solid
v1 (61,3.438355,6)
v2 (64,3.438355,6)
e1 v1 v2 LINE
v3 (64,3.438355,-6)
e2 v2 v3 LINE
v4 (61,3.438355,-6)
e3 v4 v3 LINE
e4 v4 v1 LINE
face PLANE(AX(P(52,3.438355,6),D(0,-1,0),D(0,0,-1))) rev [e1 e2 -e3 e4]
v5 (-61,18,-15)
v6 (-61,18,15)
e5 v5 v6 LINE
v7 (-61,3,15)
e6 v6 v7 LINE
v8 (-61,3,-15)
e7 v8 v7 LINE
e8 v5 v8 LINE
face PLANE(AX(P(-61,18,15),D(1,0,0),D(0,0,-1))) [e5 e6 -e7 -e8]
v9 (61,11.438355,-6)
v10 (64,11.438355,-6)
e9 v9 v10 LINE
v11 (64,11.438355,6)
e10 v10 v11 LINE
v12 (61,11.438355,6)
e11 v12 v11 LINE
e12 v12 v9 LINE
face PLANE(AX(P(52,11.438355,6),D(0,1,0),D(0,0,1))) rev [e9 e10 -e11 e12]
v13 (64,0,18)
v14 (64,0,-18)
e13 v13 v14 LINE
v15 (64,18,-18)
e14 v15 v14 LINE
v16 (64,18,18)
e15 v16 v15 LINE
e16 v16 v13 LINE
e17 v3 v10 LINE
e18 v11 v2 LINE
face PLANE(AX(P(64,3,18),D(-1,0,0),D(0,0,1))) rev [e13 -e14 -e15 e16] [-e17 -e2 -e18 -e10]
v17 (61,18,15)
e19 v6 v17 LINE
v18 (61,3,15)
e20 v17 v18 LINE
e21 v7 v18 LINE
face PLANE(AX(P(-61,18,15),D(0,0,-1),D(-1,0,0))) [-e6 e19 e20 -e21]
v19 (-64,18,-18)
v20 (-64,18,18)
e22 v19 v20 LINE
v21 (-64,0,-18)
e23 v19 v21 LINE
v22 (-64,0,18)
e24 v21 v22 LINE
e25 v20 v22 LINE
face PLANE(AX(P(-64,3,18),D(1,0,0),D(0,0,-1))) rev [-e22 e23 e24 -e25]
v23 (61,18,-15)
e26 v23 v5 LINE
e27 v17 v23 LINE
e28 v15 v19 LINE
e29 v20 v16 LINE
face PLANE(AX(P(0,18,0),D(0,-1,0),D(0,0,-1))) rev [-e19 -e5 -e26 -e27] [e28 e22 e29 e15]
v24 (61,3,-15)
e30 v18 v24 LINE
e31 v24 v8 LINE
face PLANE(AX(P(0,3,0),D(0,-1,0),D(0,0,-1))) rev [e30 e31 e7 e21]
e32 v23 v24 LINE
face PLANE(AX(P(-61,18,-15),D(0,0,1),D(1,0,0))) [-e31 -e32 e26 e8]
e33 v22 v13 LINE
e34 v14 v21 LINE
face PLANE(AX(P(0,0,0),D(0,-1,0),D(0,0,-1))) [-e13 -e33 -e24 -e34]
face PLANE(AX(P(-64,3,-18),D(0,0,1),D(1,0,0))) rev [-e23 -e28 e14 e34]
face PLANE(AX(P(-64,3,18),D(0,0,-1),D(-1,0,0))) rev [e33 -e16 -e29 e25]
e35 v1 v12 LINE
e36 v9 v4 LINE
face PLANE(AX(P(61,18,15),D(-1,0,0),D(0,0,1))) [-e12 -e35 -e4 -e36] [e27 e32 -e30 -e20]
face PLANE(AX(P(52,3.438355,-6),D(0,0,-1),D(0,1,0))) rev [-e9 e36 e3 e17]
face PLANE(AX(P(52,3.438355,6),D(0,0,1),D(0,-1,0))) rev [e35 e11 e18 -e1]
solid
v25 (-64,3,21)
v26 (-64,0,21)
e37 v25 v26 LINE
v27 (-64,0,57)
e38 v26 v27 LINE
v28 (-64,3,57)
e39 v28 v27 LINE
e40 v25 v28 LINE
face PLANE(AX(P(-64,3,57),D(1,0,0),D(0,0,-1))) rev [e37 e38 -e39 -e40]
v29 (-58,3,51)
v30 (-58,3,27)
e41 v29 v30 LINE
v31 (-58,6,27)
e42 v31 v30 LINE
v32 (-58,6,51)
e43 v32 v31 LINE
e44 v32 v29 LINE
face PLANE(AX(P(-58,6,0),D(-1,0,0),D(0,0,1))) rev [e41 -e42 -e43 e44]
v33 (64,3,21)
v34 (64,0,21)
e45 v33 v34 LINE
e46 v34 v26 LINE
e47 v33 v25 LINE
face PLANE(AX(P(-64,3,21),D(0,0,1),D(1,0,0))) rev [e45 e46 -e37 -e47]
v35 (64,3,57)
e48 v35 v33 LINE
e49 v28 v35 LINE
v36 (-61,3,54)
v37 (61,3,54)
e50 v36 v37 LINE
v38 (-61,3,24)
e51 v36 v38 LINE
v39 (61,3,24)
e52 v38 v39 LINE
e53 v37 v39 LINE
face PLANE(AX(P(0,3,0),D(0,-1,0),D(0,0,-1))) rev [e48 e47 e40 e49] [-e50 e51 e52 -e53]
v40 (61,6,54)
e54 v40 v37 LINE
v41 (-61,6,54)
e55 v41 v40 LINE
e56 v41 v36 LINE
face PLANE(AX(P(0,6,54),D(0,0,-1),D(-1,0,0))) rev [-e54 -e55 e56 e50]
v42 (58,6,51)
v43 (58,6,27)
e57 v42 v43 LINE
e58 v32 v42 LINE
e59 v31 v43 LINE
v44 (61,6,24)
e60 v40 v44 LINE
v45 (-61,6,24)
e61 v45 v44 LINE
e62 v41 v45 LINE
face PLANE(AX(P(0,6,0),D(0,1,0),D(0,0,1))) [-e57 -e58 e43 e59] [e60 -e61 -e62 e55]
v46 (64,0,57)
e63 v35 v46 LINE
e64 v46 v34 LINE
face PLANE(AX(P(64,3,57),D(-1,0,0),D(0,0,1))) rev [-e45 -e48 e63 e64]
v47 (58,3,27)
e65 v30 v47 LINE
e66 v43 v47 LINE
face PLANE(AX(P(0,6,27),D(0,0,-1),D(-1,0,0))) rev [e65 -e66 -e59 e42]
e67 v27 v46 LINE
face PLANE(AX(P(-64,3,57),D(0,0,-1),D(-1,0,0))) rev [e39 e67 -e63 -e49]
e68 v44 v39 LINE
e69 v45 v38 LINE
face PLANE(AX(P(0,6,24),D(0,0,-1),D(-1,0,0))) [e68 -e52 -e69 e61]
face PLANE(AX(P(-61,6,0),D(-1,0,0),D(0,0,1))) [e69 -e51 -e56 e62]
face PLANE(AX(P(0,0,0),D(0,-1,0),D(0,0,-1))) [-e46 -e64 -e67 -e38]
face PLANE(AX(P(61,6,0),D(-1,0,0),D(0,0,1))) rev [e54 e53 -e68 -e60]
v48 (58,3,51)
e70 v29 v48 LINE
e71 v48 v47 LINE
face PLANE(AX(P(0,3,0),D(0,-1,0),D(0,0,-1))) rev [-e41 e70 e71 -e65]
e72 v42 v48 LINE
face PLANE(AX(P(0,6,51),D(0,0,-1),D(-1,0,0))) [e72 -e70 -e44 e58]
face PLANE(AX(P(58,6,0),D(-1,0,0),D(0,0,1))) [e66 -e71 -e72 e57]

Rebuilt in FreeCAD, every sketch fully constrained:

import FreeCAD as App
import Part
import Sketcher


def add_polygon(sketch, points):
    """Adds a closed chain of lines whose ends are joined by coincident constraints."""
    first, n = sketch.GeometryCount, len(points)
    for a, b in zip(points, points[1:] + points[:1]):
        sketch.addGeometry(Part.LineSegment(App.Vector(*a, 0), App.Vector(*b, 0)), False)
    for i in range(n):
        sketch.addConstraint(Sketcher.Constraint("Coincident", first + i, 2, first + (i + 1) % n, 1))

doc = App.newDocument("Part")
body = doc.addObject("PartDesign::Body", "Body")

# Sketch on XZ plane
sketch1 = body.newObject("Sketcher::SketchObject", "Sketch")
sketch1.AttachmentSupport = (doc.getObject("XZ_Plane"), [""])
sketch1.MapMode = "FlatFace"
add_polygon(sketch1, [(-64, -18), (-64, 18), (64, 18), (64, -18)])  # lines 0-3
sketch1.addConstraint(Sketcher.Constraint("Vertical", 0))
sketch1.addConstraint(Sketcher.Constraint("Horizontal", 1))
sketch1.addConstraint(Sketcher.Constraint("Vertical", 2))
sketch1.addConstraint(Sketcher.Constraint("Horizontal", 3))
sketch1.addConstraint(Sketcher.Constraint("Symmetric", 0, 2, 2, 2, -1, 1))
sketch1.addConstraint(Sketcher.Constraint("DistanceX", 1, 1, 1, 2, 128.0))
sketch1.addConstraint(Sketcher.Constraint("DistanceY", 0, 1, 0, 2, 36.0))
pad1 = body.newObject("PartDesign::Pad", "Pad")
pad1.Profile = sketch1
pad1.Length = 3
pad1.Reversed = True

# Sketch on XZ plane
sketch2 = body.newObject("Sketcher::SketchObject", "Sketch001")
sketch2.AttachmentSupport = (doc.getObject("XZ_Plane"), [""])
sketch2.MapMode = "FlatFace"
sketch2.AttachmentOffset = App.Placement(App.Vector(0, 0, -3), App.Rotation())
add_polygon(sketch2, [(-64, -18), (-64, 18), (64, 18), (64, -18)])  # lines 0-3
add_polygon(sketch2, [(61, 15), (-61, 15), (-61, -15), (61, -15)])  # lines 4-7
sketch2.addConstraint(Sketcher.Constraint("Vertical", 0))
sketch2.addConstraint(Sketcher.Constraint("Horizontal", 1))
sketch2.addConstraint(Sketcher.Constraint("Vertical", 2))
sketch2.addConstraint(Sketcher.Constraint("Horizontal", 3))
sketch2.addConstraint(Sketcher.Constraint("Horizontal", 4))
sketch2.addConstraint(Sketcher.Constraint("Vertical", 5))
sketch2.addConstraint(Sketcher.Constraint("Horizontal", 6))
sketch2.addConstraint(Sketcher.Constraint("Vertical", 7))
sketch2.addConstraint(Sketcher.Constraint("Symmetric", 0, 2, 2, 2, -1, 1))
sketch2.addConstraint(Sketcher.Constraint("Symmetric", 4, 2, 6, 2, -1, 1))
sketch2.addConstraint(Sketcher.Constraint("DistanceX", 1, 1, 1, 2, 128.0))
sketch2.addConstraint(Sketcher.Constraint("DistanceX", 4, 2, 4, 1, 122.0))
sketch2.addConstraint(Sketcher.Constraint("DistanceY", 0, 1, 0, 2, 36.0))
sketch2.addConstraint(Sketcher.Constraint("DistanceY", 5, 2, 5, 1, 30.0))
pad2 = body.newObject("PartDesign::Pad", "Pad001")
pad2.Profile = sketch2
pad2.Length = 15
pad2.Reversed = True

# Sketch on YZ plane
sketch3 = body.newObject("Sketcher::SketchObject", "Sketch002")
sketch3.AttachmentSupport = (doc.getObject("YZ_Plane"), [""])
sketch3.MapMode = "FlatFace"
sketch3.AttachmentOffset = App.Placement(App.Vector(0, 0, 64), App.Rotation())
add_polygon(sketch3, [(11.438355, 6), (3.438355, 6), (3.438355, -6), (11.438355, -6)])  # lines 0-3
sketch3.addConstraint(Sketcher.Constraint("Horizontal", 0))
sketch3.addConstraint(Sketcher.Constraint("Vertical", 1))
sketch3.addConstraint(Sketcher.Constraint("Horizontal", 2))
sketch3.addConstraint(Sketcher.Constraint("Vertical", 3))
sketch3.addConstraint(Sketcher.Constraint("DistanceX", 0, 2, 0, 1, 8.0))
sketch3.addConstraint(Sketcher.Constraint("DistanceY", 1, 2, 1, 1, 12.0))
sketch3.addConstraint(Sketcher.Constraint("DistanceY", -1, 1, 0, 2, 6.0))
sketch3.addConstraint(Sketcher.Constraint("DistanceX", -1, 1, 0, 2, 3.438355))
pocket1 = body.newObject("PartDesign::Pocket", "Pocket")
pocket1.Profile = sketch3
pocket1.Length = 12
body2 = doc.addObject("PartDesign::Body", "Body001")

# Sketch on XZ plane
sketch4 = body2.newObject("Sketcher::SketchObject", "Sketch003")
sketch4.AttachmentSupport = (doc.getObject("XZ_Plane001"), [""])
sketch4.MapMode = "FlatFace"
add_polygon(sketch4, [(-64, 21), (-64, 57), (64, 57), (64, 21)])  # lines 0-3
sketch4.addConstraint(Sketcher.Constraint("Vertical", 0))
sketch4.addConstraint(Sketcher.Constraint("Horizontal", 1))
sketch4.addConstraint(Sketcher.Constraint("Vertical", 2))
sketch4.addConstraint(Sketcher.Constraint("Horizontal", 3))
sketch4.addConstraint(Sketcher.Constraint("DistanceX", 1, 1, 1, 2, 128.0))
sketch4.addConstraint(Sketcher.Constraint("DistanceY", 0, 1, 0, 2, 36.0))
sketch4.addConstraint(Sketcher.Constraint("DistanceX", 0, 2, -1, 1, 64.0))
sketch4.addConstraint(Sketcher.Constraint("DistanceY", -1, 1, 0, 2, 57.0))
pad3 = body2.newObject("PartDesign::Pad", "Pad002")
pad3.Profile = sketch4
pad3.Length = 3
pad3.Reversed = True

# Sketch on XZ plane
sketch5 = body2.newObject("Sketcher::SketchObject", "Sketch004")
sketch5.AttachmentSupport = (doc.getObject("XZ_Plane001"), [""])
sketch5.MapMode = "FlatFace"
sketch5.AttachmentOffset = App.Placement(App.Vector(0, 0, -3), App.Rotation())
add_polygon(sketch5, [(-61, 24), (-61, 54), (61, 54), (61, 24)])  # lines 0-3
add_polygon(sketch5, [(58, 51), (-58, 51), (-58, 27), (58, 27)])  # lines 4-7
sketch5.addConstraint(Sketcher.Constraint("Vertical", 0))
sketch5.addConstraint(Sketcher.Constraint("Horizontal", 1))
sketch5.addConstraint(Sketcher.Constraint("Vertical", 2))
sketch5.addConstraint(Sketcher.Constraint("Horizontal", 3))
sketch5.addConstraint(Sketcher.Constraint("Horizontal", 4))
sketch5.addConstraint(Sketcher.Constraint("Vertical", 5))
sketch5.addConstraint(Sketcher.Constraint("Horizontal", 6))
sketch5.addConstraint(Sketcher.Constraint("Vertical", 7))
sketch5.addConstraint(Sketcher.Constraint("DistanceX", 1, 1, 1, 2, 122.0))
sketch5.addConstraint(Sketcher.Constraint("DistanceX", 4, 2, 4, 1, 116.0))
sketch5.addConstraint(Sketcher.Constraint("DistanceY", 0, 1, 0, 2, 30.0))
sketch5.addConstraint(Sketcher.Constraint("DistanceY", 5, 2, 5, 1, 24.0))
sketch5.addConstraint(Sketcher.Constraint("DistanceX", 0, 2, -1, 1, 61.0))
sketch5.addConstraint(Sketcher.Constraint("DistanceY", -1, 1, 0, 2, 54.0))
sketch5.addConstraint(Sketcher.Constraint("DistanceX", 4, 2, -1, 1, 58.0))
sketch5.addConstraint(Sketcher.Constraint("DistanceY", -1, 1, 4, 2, 51.0))
pad4 = body2.newObject("PartDesign::Pad", "Pad003")
pad4.Profile = sketch5
pad4.Length = 3
pad4.Reversed = True

doc.recompute()
